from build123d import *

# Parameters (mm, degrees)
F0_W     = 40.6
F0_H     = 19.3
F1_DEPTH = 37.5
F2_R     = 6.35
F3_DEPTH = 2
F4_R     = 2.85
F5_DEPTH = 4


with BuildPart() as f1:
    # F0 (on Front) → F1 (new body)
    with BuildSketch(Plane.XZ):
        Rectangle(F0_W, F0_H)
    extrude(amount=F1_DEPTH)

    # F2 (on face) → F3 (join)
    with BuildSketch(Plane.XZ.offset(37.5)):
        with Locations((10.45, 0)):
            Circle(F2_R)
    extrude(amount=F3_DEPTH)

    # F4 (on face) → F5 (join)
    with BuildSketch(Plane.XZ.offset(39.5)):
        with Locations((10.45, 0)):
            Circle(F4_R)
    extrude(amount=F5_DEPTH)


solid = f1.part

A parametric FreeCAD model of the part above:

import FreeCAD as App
import Part
import Sketcher

V = App.Vector
Q = App.Units.Quantity


def add_polygon(sketch, points):
    """Adds a closed chain of lines whose ends are joined by coincident constraints."""
    first, n = sketch.GeometryCount, len(points)
    for a, b in zip(points, points[1:] + points[:1]):
        sketch.addGeometry(Part.LineSegment(App.Vector(*a, 0), App.Vector(*b, 0)), False)
    for i in range(n):
        sketch.addConstraint(Sketcher.Constraint("Coincident", first + i, 2, first + (i + 1) % n, 1))

doc = App.newDocument("Part")
body = doc.addObject("PartDesign::Body", "Body")

# Sketch on XZ plane
sketch1 = body.newObject("Sketcher::SketchObject", "Sketch")
sketch1.AttachmentSupport = (doc.getObject("XZ_Plane"), [""])
sketch1.MapMode = "FlatFace"
add_polygon(sketch1, [(-20.3, 9.65), (-20.3, -9.65), (20.3, -9.65), (20.3, 9.65)])  # lines 0-3
sketch1.addConstraint([
    Sketcher.Constraint("Vertical", 0),
    Sketcher.Constraint("Horizontal", 1),
    Sketcher.Constraint("Vertical", 2),
    Sketcher.Constraint("Horizontal", 3),
    Sketcher.Constraint("Symmetric", 0, 2, 2, 2, -1, 1),
    Sketcher.Constraint("DistanceX", 1, 1, 1, 2, Q("40.6 mm")),
    Sketcher.Constraint("DistanceY", 0, 2, 0, 1, Q("19.3 mm")),
])
pad1 = body.newObject("PartDesign::Pad", "Pad")
pad1.Profile = sketch1
pad1.Length = 37.5

# Sketch on XZ plane
sketch2 = body.newObject("Sketcher::SketchObject", "Sketch001")
sketch2.AttachmentSupport = (doc.getObject("XZ_Plane"), [""])
sketch2.MapMode = "FlatFace"
sketch2.AttachmentOffset = App.Placement(V(0, 0, 37.5), App.Rotation())
sketch2.addGeometry(Part.Circle(V(10.45, 0, 0), V(0, 0, 1), 6.35), False)
sketch2.addConstraint([
    Sketcher.Constraint("PointOnObject", 0, 3, -1),
    Sketcher.Constraint("Diameter", 0, Q("12.7 mm")),
    Sketcher.Constraint("DistanceX", -1, 1, 0, 3, Q("10.45 mm")),
])
pad2 = body.newObject("PartDesign::Pad", "Pad001")
pad2.Profile = sketch2
pad2.Length = 2

# Sketch on XZ plane
sketch3 = body.newObject("Sketcher::SketchObject", "Sketch002")
sketch3.AttachmentSupport = (doc.getObject("XZ_Plane"), [""])
sketch3.MapMode = "FlatFace"
sketch3.AttachmentOffset = App.Placement(V(0, 0, 39.5), App.Rotation())
sketch3.addGeometry(Part.Circle(V(10.45, 0, 0), V(0, 0, 1), 2.85), False)
sketch3.addConstraint([
    Sketcher.Constraint("PointOnObject", 0, 3, -1),
    Sketcher.Constraint("Diameter", 0, Q("5.7 mm")),
    Sketcher.Constraint("DistanceX", -1, 1, 0, 3, Q("10.45 mm")),
])
pad3 = body.newObject("PartDesign::Pad", "Pad002")
pad3.Profile = sketch3
pad3.Length = 4

doc.recompute()
